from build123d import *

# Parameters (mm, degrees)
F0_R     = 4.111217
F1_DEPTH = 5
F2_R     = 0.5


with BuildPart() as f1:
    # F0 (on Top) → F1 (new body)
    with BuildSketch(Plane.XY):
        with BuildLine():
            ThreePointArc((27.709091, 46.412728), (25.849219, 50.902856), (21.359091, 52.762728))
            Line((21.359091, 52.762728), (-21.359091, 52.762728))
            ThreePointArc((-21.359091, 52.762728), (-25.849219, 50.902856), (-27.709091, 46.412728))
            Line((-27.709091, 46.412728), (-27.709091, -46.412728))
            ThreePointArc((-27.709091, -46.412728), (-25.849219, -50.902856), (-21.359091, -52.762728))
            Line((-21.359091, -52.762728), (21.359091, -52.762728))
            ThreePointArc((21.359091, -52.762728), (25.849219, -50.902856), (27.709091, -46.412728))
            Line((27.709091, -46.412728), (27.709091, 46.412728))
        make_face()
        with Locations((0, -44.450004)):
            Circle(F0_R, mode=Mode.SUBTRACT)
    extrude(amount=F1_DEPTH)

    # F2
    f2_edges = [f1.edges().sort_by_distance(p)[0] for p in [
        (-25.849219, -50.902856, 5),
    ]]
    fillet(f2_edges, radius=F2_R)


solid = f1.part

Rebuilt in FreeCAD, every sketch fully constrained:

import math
import FreeCAD as App
import Part
import Sketcher
from FreeCAD import Vector


def edges_at(feature, points):
    """Names of the edges that pass closest to the given points."""
    edges = feature.Shape.Edges
    near = lambda p: min(range(len(edges)), key=lambda i: edges[i].distToShape(Part.Vertex(*p))[0])
    return sorted({f"Edge{near(p) + 1}" for p in points})

doc = App.newDocument("Part")
body = doc.addObject("PartDesign::Body", "Body")

# Sketch on XY plane
sketch1 = body.newObject("Sketcher::SketchObject", "Sketch")
sketch1.AttachmentSupport = (doc.getObject("XY_Plane"), [""])
sketch1.MapMode = "FlatFace"
sketch1.addGeometry(Part.ArcOfCircle(Part.Circle(Vector(21.359091, 46.412728, 0), Vector(0, 0, 1), 6.35), math.radians(0.000002), math.radians(89.999998)), False)
sketch1.addGeometry(Part.LineSegment(Vector(21.359091, 52.762728, 0), Vector(-21.359091, 52.762728, 0)), False)
sketch1.addGeometry(Part.ArcOfCircle(Part.Circle(Vector(-21.359091, 46.412728, 0), Vector(0, 0, 1), 6.35), math.radians(90.000002), math.radians(179.999998)), False)
sketch1.addGeometry(Part.LineSegment(Vector(-27.709091, 46.412728, 0), Vector(-27.709091, -46.412728, 0)), False)
sketch1.addGeometry(Part.ArcOfCircle(Part.Circle(Vector(-21.359091, -46.412728, 0), Vector(0, 0, 1), 6.35), math.radians(-179.999998), math.radians(-90.000002)), False)
sketch1.addGeometry(Part.LineSegment(Vector(-21.359091, -52.762728, 0), Vector(21.359091, -52.762728, 0)), False)
sketch1.addGeometry(Part.ArcOfCircle(Part.Circle(Vector(21.359091, -46.412728, 0), Vector(0, 0, 1), 6.35), math.radians(-89.999998), math.radians(-0.000002)), False)
sketch1.addGeometry(Part.LineSegment(Vector(27.709091, -46.412728, 0), Vector(27.709091, 46.412728, 0)), False)
sketch1.addGeometry(Part.Circle(Vector(0, -44.450004, 0), Vector(0, 0, 1), 4.111217), False)
sketch1.addConstraint(Sketcher.Constraint("Tangent", 0, 2, 1, 1))
sketch1.addConstraint(Sketcher.Constraint("Tangent", 1, 2, 2, 1))
sketch1.addConstraint(Sketcher.Constraint("Tangent", 2, 2, 3, 1))
sketch1.addConstraint(Sketcher.Constraint("Tangent", 3, 2, 4, 1))
sketch1.addConstraint(Sketcher.Constraint("Tangent", 4, 2, 5, 1))
sketch1.addConstraint(Sketcher.Constraint("Tangent", 5, 2, 6, 1))
sketch1.addConstraint(Sketcher.Constraint("Tangent", 6, 2, 7, 1))
sketch1.addConstraint(Sketcher.Constraint("Tangent", 7, 2, 0, 1))
sketch1.addConstraint(Sketcher.Constraint("Horizontal", 1))
sketch1.addConstraint(Sketcher.Constraint("Vertical", 3))
sketch1.addConstraint(Sketcher.Constraint("Horizontal", 5))
sketch1.addConstraint(Sketcher.Constraint("Vertical", 7))
sketch1.addConstraint(Sketcher.Constraint("Equal", 0, 2))
sketch1.addConstraint(Sketcher.Constraint("Equal", 2, 4))
sketch1.addConstraint(Sketcher.Constraint("Equal", 4, 6))
sketch1.addConstraint(Sketcher.Constraint("Symmetric", 0, 3, 4, 3, -1, 1))
sketch1.addConstraint(Sketcher.Constraint("PointOnObject", 8, 3, -2))
sketch1.addConstraint(Sketcher.Constraint("Radius", 0, 6.35))
sketch1.addConstraint(Sketcher.Constraint("Diameter", 8, 8.222434))
sketch1.addConstraint(Sketcher.Constraint("DistanceX", 1, 2, 1, 1, 42.718182))
sketch1.addConstraint(Sketcher.Constraint("DistanceY", 3, 2, 3, 1, 92.825456))
sketch1.addConstraint(Sketcher.Constraint("DistanceY", 8, 3, 0, 3, 90.862732))
pad1 = body.newObject("PartDesign::Pad", "Pad")
pad1.Profile = sketch1
pad1.Length = 5
doc.recompute()

fillet = body.newObject("PartDesign::Fillet", "Fillet")
fillet.Base = (pad1, edges_at(pad1, [(-25.849, -50.903, 5)]))
fillet.Radius = 0.5

doc.recompute()
